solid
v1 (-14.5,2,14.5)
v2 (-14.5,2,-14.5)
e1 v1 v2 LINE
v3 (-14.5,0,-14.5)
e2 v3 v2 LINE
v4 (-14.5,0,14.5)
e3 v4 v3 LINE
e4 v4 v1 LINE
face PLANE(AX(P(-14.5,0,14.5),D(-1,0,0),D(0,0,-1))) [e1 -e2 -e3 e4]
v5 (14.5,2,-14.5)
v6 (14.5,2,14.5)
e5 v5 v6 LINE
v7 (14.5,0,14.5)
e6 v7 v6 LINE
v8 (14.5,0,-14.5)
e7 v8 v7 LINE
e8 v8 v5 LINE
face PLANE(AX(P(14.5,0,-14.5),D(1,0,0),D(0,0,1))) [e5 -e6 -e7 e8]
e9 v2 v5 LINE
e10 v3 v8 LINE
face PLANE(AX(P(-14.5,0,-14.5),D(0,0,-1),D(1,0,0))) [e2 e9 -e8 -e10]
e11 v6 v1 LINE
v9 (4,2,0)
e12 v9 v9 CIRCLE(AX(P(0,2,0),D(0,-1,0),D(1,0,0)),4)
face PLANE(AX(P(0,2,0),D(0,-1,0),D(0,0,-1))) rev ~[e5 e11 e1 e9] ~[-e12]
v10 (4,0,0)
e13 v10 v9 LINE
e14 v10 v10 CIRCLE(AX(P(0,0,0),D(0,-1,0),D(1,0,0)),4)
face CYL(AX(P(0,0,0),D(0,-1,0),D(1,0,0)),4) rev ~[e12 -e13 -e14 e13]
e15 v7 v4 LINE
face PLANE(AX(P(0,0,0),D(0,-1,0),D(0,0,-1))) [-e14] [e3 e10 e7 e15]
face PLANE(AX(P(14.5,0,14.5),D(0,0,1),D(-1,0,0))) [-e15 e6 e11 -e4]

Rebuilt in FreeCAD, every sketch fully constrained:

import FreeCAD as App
import Part
import Sketcher

V = App.Vector

doc = App.newDocument("Part")
params = doc.addObject("Spreadsheet::Sheet", "Params")
for row, (alias, value) in enumerate([
    ("sketch1_diameter", "8 mm"),
    ("sketch1_width", "29 mm"),
    ("pad1_length", "2 mm"),
], start=1):
    params.set(f"A{row}", alias)
    params.set(f"B{row}", "=" + value)
    params.setAlias(f"B{row}", alias)

body = doc.addObject("PartDesign::Body", "Body")

sketch1 = body.newObject("Sketcher::SketchObject", "Sketch")
sketch1.AttachmentSupport = (doc.getObject("XZ_Plane"), [""])
sketch1.MapMode = "FlatFace"
sketch1.addGeometry([
    Part.LineSegment(V(14.5, -14.5, 0), V(14.5, 14.5, 0)),
    Part.LineSegment(V(14.5, 14.5, 0), V(-14.5, 14.5, 0)),
    Part.LineSegment(V(-14.5, 14.5, 0), V(-14.5, -14.5, 0)),
    Part.LineSegment(V(-14.5, -14.5, 0), V(14.5, -14.5, 0)),
    Part.Circle(V(0, 0, 0), V(0, 0, 1), 4),
], False)
sketch1.addConstraint([
    Sketcher.Constraint("Coincident", 0, 2, 1, 1),
    Sketcher.Constraint("Coincident", 1, 2, 2, 1),
    Sketcher.Constraint("Coincident", 2, 2, 3, 1),
    Sketcher.Constraint("Coincident", 3, 2, 0, 1),
    Sketcher.Constraint("Vertical", 0),
    Sketcher.Constraint("Horizontal", 1),
    Sketcher.Constraint("Vertical", 2),
    Sketcher.Constraint("Horizontal", 3),
    Sketcher.Constraint("Coincident", 4, 3, -1, 1),
    Sketcher.Constraint("Symmetric", 0, 2, 2, 2, -1, 1),
    Sketcher.Constraint("Equal", 3, 0),
    Sketcher.Constraint("Diameter", 4, 8.0),
    Sketcher.Constraint("DistanceX", 1, 2, 1, 1, 29.0),
])
sketch1.setExpression("Constraints[11]", "Params.sketch1_diameter")
sketch1.setExpression("Constraints[12]", "Params.sketch1_width")
pad1 = body.newObject("PartDesign::Pad", "Pad")
pad1.Profile = sketch1
pad1.setExpression("Length", "Params.pad1_length")
pad1.Reversed = True

doc.recompute()
